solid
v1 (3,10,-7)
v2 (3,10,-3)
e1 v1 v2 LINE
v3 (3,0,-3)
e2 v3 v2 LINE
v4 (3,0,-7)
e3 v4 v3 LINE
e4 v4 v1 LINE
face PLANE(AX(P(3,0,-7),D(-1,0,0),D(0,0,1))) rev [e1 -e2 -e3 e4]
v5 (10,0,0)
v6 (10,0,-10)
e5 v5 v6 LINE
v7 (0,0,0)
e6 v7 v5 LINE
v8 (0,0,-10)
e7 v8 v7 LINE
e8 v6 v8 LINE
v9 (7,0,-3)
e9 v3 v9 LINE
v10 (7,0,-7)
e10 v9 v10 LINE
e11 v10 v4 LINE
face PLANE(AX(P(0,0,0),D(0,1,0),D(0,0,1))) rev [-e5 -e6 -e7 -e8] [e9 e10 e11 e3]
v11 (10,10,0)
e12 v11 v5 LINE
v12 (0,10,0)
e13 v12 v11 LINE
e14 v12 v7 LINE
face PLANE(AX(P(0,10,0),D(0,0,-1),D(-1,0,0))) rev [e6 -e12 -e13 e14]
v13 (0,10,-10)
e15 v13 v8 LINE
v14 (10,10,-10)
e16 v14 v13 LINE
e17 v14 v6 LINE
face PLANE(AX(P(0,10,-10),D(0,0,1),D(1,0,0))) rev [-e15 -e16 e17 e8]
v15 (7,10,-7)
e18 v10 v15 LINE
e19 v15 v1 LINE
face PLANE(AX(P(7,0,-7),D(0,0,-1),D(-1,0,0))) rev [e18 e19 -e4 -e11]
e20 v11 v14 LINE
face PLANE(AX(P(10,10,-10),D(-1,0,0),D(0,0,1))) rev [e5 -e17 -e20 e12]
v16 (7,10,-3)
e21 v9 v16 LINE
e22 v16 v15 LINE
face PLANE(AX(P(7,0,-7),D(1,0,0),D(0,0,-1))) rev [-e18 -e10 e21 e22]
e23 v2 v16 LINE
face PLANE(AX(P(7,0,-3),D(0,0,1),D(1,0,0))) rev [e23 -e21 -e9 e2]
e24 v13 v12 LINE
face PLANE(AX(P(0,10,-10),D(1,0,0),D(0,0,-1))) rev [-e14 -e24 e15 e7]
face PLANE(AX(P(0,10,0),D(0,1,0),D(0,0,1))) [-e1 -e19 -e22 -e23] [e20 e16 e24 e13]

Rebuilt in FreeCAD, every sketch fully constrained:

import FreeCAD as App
import Part
import Sketcher

V = App.Vector
Q = App.Units.Quantity


def add_polygon(sketch, points):
    """Adds a closed chain of lines whose ends are joined by coincident constraints."""
    first, n = sketch.GeometryCount, len(points)
    for a, b in zip(points, points[1:] + points[:1]):
        sketch.addGeometry(Part.LineSegment(App.Vector(*a, 0), App.Vector(*b, 0)), False)
    for i in range(n):
        sketch.addConstraint(Sketcher.Constraint("Coincident", first + i, 2, first + (i + 1) % n, 1))

doc = App.newDocument("Part")
body = doc.addObject("PartDesign::Body", "Body")

# Sketch on XZ plane
sketch1 = doc.addObject("Sketcher::SketchObject", "Sketch")
body.addObject(sketch1)
sketch1.AttachmentSupport = (doc.XZ_Plane, [""])
sketch1.MapMode = "FlatFace"
add_polygon(sketch1, [(0, -10), (0, 0), (10, 0), (10, -10)])  # lines 0-3
sketch1.addConstraint([
    Sketcher.Constraint("Vertical", 0),
    Sketcher.Constraint("Horizontal", 1),
    Sketcher.Constraint("Vertical", 2),
    Sketcher.Constraint("Horizontal", 3),
    Sketcher.Constraint("Coincident", 0, 2, -1, 1),
    Sketcher.Constraint("Equal", 3, 0),
    Sketcher.Constraint("DistanceX", 1, 1, 1, 2, Q("10 mm")),
])
pad1 = doc.addObject("PartDesign::Pad", "Pad")
body.addObject(pad1)
pad1.Profile = sketch1
pad1.Length = 10
pad1.Reversed = True

# Sketch on XZ plane
sketch2 = doc.addObject("Sketcher::SketchObject", "Sketch001")
body.addObject(sketch2)
sketch2.AttachmentSupport = (doc.XZ_Plane, [""])
sketch2.MapMode = "FlatFace"
sketch2.AttachmentOffset = App.Placement(V(0, 0, -10), App.Rotation())
add_polygon(sketch2, [(3, -7), (3, -3), (7, -3), (7, -7)])  # lines 0-3
sketch2.addConstraint([
    Sketcher.Constraint("Vertical", 0),
    Sketcher.Constraint("Horizontal", 1),
    Sketcher.Constraint("Vertical", 2),
    Sketcher.Constraint("Horizontal", 3),
    Sketcher.Constraint("Equal", 3, 0),
    Sketcher.Constraint("DistanceX", 1, 1, 1, 2, Q("4 mm")),
    Sketcher.Constraint("DistanceX", -1, 1, 0, 2, Q("3 mm")),
    Sketcher.Constraint("DistanceY", 0, 2, -1, 1, Q("3 mm")),
])
pocket1 = doc.addObject("PartDesign::Pocket", "Pocket")
body.addObject(pocket1)
pocket1.Profile = sketch2
pocket1.Type = "ThroughAll"
pocket1.Reversed = True

doc.recompute()
